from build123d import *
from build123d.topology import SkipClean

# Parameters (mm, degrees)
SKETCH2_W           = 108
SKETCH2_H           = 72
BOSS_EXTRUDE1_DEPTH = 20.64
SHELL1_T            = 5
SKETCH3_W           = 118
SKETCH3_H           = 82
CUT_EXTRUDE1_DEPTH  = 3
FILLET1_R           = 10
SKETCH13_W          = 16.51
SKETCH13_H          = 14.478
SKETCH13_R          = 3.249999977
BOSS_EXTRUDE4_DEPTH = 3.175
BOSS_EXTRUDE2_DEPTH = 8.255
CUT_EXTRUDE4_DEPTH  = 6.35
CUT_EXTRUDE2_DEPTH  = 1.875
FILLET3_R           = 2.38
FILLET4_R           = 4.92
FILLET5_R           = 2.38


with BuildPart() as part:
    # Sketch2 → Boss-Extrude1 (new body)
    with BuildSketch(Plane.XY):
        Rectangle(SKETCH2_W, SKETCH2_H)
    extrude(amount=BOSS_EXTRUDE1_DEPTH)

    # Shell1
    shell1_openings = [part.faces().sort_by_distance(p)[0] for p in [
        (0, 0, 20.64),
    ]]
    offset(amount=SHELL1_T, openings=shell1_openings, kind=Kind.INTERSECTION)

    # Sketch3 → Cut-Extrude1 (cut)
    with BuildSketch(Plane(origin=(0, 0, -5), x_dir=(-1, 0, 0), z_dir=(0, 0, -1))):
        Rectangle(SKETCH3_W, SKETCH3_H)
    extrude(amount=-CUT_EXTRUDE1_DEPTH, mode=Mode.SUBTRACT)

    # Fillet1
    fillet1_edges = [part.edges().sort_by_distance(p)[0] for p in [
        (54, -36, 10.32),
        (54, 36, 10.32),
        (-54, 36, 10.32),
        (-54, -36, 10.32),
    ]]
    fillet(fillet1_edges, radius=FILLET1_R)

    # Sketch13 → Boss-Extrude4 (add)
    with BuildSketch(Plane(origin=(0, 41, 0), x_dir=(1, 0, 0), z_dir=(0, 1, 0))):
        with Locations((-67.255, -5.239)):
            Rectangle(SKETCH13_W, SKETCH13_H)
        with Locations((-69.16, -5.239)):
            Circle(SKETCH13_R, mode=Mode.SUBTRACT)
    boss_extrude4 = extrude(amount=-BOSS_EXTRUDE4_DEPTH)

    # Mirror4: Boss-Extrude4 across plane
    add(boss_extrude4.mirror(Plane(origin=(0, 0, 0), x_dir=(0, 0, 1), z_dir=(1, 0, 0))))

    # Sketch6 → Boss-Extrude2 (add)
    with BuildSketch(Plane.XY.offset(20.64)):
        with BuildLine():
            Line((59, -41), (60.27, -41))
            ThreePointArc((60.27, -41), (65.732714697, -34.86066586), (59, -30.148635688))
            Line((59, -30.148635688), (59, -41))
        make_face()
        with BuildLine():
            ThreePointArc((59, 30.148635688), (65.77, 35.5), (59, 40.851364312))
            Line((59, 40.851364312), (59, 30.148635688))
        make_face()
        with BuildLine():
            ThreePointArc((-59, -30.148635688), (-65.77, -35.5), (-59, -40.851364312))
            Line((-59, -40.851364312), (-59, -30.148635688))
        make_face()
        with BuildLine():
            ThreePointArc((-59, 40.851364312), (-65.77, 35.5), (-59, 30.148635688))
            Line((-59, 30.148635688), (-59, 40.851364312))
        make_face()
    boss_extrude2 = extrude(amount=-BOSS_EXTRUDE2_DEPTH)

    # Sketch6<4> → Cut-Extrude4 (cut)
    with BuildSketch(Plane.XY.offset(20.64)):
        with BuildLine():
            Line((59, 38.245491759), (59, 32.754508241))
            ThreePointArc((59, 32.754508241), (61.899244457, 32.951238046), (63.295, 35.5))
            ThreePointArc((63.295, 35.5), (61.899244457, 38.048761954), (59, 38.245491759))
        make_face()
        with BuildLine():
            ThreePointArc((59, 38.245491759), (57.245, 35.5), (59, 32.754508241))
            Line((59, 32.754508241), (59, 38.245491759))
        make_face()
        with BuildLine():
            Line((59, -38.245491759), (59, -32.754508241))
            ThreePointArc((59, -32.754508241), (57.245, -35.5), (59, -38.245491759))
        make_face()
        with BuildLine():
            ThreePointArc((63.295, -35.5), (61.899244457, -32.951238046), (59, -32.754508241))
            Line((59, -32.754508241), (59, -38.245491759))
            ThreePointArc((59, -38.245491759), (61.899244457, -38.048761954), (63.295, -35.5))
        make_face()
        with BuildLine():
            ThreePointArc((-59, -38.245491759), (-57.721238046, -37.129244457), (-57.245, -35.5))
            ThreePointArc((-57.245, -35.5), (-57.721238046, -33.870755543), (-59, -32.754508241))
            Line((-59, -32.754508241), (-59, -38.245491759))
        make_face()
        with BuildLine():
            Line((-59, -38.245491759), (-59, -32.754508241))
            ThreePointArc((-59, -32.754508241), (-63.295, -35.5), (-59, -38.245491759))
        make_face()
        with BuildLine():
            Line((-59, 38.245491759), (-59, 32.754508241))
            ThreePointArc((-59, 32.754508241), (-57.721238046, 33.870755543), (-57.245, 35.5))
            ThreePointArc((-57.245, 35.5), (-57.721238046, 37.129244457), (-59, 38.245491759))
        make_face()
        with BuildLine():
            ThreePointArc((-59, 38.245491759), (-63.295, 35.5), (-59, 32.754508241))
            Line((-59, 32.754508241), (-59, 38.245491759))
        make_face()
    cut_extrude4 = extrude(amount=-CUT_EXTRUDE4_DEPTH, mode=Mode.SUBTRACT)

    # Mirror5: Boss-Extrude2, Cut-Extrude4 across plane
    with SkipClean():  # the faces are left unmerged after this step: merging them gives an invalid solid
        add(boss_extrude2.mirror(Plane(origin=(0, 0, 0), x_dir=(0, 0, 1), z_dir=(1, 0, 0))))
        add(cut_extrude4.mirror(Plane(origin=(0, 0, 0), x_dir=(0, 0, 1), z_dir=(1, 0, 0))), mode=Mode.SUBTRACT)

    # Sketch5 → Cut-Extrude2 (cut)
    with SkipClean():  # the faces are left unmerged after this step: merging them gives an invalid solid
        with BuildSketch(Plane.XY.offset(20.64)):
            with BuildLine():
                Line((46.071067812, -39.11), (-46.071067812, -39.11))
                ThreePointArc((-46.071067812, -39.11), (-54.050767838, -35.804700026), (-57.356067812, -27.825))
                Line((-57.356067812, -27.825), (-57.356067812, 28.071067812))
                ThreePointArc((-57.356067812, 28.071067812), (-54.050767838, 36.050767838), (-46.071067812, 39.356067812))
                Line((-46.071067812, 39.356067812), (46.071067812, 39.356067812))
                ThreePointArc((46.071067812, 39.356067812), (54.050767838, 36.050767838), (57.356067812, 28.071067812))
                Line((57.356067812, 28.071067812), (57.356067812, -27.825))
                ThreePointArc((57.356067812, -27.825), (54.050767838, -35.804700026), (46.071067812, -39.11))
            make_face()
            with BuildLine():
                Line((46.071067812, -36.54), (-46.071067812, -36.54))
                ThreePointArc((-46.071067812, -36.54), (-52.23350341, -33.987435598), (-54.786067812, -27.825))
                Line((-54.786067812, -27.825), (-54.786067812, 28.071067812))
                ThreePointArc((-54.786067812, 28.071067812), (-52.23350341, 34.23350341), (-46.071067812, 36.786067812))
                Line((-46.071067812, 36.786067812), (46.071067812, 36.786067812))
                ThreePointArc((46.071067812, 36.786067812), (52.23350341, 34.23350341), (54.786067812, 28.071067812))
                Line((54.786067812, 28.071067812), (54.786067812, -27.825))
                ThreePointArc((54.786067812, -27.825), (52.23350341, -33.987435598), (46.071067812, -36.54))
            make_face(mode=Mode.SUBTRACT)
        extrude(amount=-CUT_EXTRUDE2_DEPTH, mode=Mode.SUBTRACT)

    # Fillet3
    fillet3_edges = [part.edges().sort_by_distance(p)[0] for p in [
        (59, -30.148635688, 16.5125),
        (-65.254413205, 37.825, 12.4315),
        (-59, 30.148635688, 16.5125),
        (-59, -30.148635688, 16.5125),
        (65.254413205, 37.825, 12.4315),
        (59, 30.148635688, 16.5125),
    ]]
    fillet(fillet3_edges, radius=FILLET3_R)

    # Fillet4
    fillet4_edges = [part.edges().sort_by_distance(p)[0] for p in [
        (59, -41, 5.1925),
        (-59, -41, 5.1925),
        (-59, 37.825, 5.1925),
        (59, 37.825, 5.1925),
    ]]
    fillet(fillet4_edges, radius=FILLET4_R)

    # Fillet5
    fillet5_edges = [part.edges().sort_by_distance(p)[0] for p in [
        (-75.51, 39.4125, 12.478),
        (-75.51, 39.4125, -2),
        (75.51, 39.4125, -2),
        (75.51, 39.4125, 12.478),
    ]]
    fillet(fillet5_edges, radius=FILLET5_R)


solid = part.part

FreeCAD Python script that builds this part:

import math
import FreeCAD as App
import Part
import Sketcher

V = App.Vector
Q = App.Units.Quantity


def edges_at(feature, points):
    """Names of the edges that pass closest to the given points."""
    edges = feature.Shape.Edges
    near = lambda p: min(range(len(edges)), key=lambda i: edges[i].distToShape(Part.Vertex(*p))[0])
    return sorted({f"Edge{near(p) + 1}" for p in points})


def faces_at(feature, points):
    """Names of the faces that lie closest to the given points."""
    faces = feature.Shape.Faces
    near = lambda p: min(range(len(faces)), key=lambda i: faces[i].distToShape(Part.Vertex(*p))[0])
    return sorted({f"Face{near(p) + 1}" for p in points})

doc = App.newDocument("Part")
body = doc.addObject("PartDesign::Body", "Body")

# Sketch on XY plane
sketch1 = doc.addObject("Sketcher::SketchObject", "Sketch")
body.addObject(sketch1)
sketch1.AttachmentSupport = (doc.XY_Plane, [""])
sketch1.MapMode = "FlatFace"
sketch1.addGeometry([
    Part.LineSegment(V(-54, 36, 0), V(-54, -36, 0)),
    Part.LineSegment(V(-54, -36, 0), V(54, -36, 0)),
    Part.LineSegment(V(54, -36, 0), V(54, 36, 0)),
    Part.LineSegment(V(54, 36, 0), V(-54, 36, 0)),
], False)
sketch1.addConstraint([
    Sketcher.Constraint("Coincident", 0, 2, 1, 1),
    Sketcher.Constraint("Coincident", 1, 2, 2, 1),
    Sketcher.Constraint("Coincident", 2, 2, 3, 1),
    Sketcher.Constraint("Coincident", 3, 2, 0, 1),
    Sketcher.Constraint("Vertical", 0),
    Sketcher.Constraint("Horizontal", 1),
    Sketcher.Constraint("Vertical", 2),
    Sketcher.Constraint("Horizontal", 3),
    Sketcher.Constraint("Symmetric", 0, 2, 2, 2, -1, 1),
    Sketcher.Constraint("DistanceX", 1, 1, 1, 2, Q("108 mm")),
    Sketcher.Constraint("DistanceY", 0, 2, 0, 1, Q("72 mm")),
])
pad1 = doc.addObject("PartDesign::Pad", "Pad")
body.addObject(pad1)
pad1.Profile = sketch1
pad1.Length = 20.64
doc.recompute()

thickness = doc.addObject("PartDesign::Thickness", "Thickness")
body.addObject(thickness)
thickness.Base = (pad1, faces_at(pad1, [(0, 0, 20.64)]))
thickness.Value = 5
thickness.Reversed = False
thickness.Join = "Intersection"

# Sketch on XY plane
sketch2 = doc.addObject("Sketcher::SketchObject", "Sketch001")
body.addObject(sketch2)
sketch2.AttachmentSupport = (doc.XY_Plane, [""])
sketch2.MapMode = "FlatFace"
sketch2.AttachmentOffset = App.Placement(V(0, 0, -5), App.Rotation())
sketch2.addGeometry([
    Part.LineSegment(V(59, 41, 0), V(59, -41, 0)),
    Part.LineSegment(V(59, -41, 0), V(-59, -41, 0)),
    Part.LineSegment(V(-59, -41, 0), V(-59, 41, 0)),
    Part.LineSegment(V(-59, 41, 0), V(59, 41, 0)),
], False)
sketch2.addConstraint([
    Sketcher.Constraint("Coincident", 0, 2, 1, 1),
    Sketcher.Constraint("Coincident", 1, 2, 2, 1),
    Sketcher.Constraint("Coincident", 2, 2, 3, 1),
    Sketcher.Constraint("Coincident", 3, 2, 0, 1),
    Sketcher.Constraint("Vertical", 0),
    Sketcher.Constraint("Horizontal", 1),
    Sketcher.Constraint("Vertical", 2),
    Sketcher.Constraint("Horizontal", 3),
    Sketcher.Constraint("Symmetric", 0, 2, 2, 2, -1, 1),
    Sketcher.Constraint("DistanceX", 1, 2, 1, 1, Q("118 mm")),
    Sketcher.Constraint("DistanceY", 0, 2, 0, 1, Q("82 mm")),
])
pocket1 = doc.addObject("PartDesign::Pocket", "Pocket")
body.addObject(pocket1)
pocket1.Profile = sketch2
pocket1.Length = 3
pocket1.Reversed = True
doc.recompute()

fillet = doc.addObject("PartDesign::Fillet", "Fillet")
body.addObject(fillet)
fillet.Base = (pocket1, edges_at(pocket1, [
    (54, -36, 10.32),
    (54, 36, 10.32),
    (-54, 36, 10.32),
    (-54, -36, 10.32),
]))
fillet.Radius = 10

# Sketch on XZ plane
sketch3 = doc.addObject("Sketcher::SketchObject", "Sketch002")
body.addObject(sketch3)
sketch3.AttachmentSupport = (doc.XZ_Plane, [""])
sketch3.MapMode = "FlatFace"
sketch3.AttachmentOffset = App.Placement(V(0, 0, -41), App.Rotation())
sketch3.addGeometry([
    Part.LineSegment(V(-75.5, -2, 0), V(-75.5, 12.5, 0)),  # 0
    Part.LineSegment(V(-75.5, 12.5, 0), V(-59, 12.5, 0)),  # 1
    Part.LineSegment(V(-59, 12.5, 0), V(-59, -2, 0)),  # 2
    Part.LineSegment(V(-59, -2, 0), V(-75.5, -2, 0)),  # 3
    Part.Circle(V(-69.2, 5.2, 0), V(0, 0, 1), 3.2),  # 4
], False)
sketch3.addConstraint([
    Sketcher.Constraint("Coincident", 0, 2, 1, 1),
    Sketcher.Constraint("Coincident", 1, 2, 2, 1),
    Sketcher.Constraint("Coincident", 2, 2, 3, 1),
    Sketcher.Constraint("Coincident", 3, 2, 0, 1),
    Sketcher.Constraint("Vertical", 0),
    Sketcher.Constraint("Horizontal", 1),
    Sketcher.Constraint("Vertical", 2),
    Sketcher.Constraint("Horizontal", 3),
    Sketcher.Constraint("Diameter", 4, Q("6.5 mm")),
    Sketcher.Constraint("DistanceX", 1, 2, -1, 1, Q("59 mm")),
    Sketcher.Constraint("DistanceY", 2, 2, -1, 1, Q("2 mm")),
    Sketcher.Constraint("DistanceX", 1, 1, 1, 2, Q("16.51 mm")),
    Sketcher.Constraint("DistanceY", 0, 1, 0, 2, Q("14.478 mm")),
    Sketcher.Constraint("DistanceX", 4, 3, -1, 1, Q("69.16 mm")),
    Sketcher.Constraint("DistanceY", -1, 1, 4, 3, Q("5.239 mm")),
])
pad2 = doc.addObject("PartDesign::Pad", "Pad001")
body.addObject(pad2)
pad2.Profile = sketch3
pad2.Length = 3.175
doc.recompute()

mirrored = doc.addObject("PartDesign::Mirrored", "Mirrored")
body.addObject(mirrored)
mirrored.Originals = [pad2]
mirrored.MirrorPlane = (doc.YZ_Plane, [""])
body.Tip = mirrored

# Sketch on XY plane
sketch4 = doc.addObject("Sketcher::SketchObject", "Sketch003")
body.addObject(sketch4)
sketch4.AttachmentSupport = (doc.XY_Plane, [""])
sketch4.MapMode = "FlatFace"
sketch4.AttachmentOffset = App.Placement(V(0, 0, 20.64), App.Rotation())
sketch4.addGeometry([
    Part.LineSegment(V(59, -41, 0), V(60.3, -41, 0)),  # 0
    Part.ArcOfCircle(Part.Circle(V(60.3, -35.5, 0), V(0, 0, 1), 5.5), math.radians(-90), math.radians(103)),  # 1
    Part.LineSegment(V(59, -30.1, 0), V(59, -41, 0)),  # 2
    Part.ArcOfCircle(Part.Circle(V(60.3, 35.5, 0), V(0, 0, 1), 5.5), math.radians(-103), math.radians(103)),  # 3
    Part.LineSegment(V(59, 40.9, 0), V(59, 30.1, 0)),  # 4
    Part.ArcOfCircle(Part.Circle(V(-60.3, -35.5, 0), V(0, 0, 1), 5.5), math.radians(77), math.radians(283)),  # 5
    Part.LineSegment(V(-59, -40.9, 0), V(-59, -30.1, 0)),  # 6
    Part.ArcOfCircle(Part.Circle(V(-60.3, 35.5, 0), V(0, 0, 1), 5.5), math.radians(77), math.radians(283)),  # 7
    Part.LineSegment(V(-59, 30.1, 0), V(-59, 40.9, 0)),  # 8
], False)
sketch4.addConstraint([
    Sketcher.Constraint("Tangent", 0, 2, 1, 1),
    Sketcher.Constraint("Coincident", 1, 2, 2, 1),
    Sketcher.Constraint("Coincident", 2, 2, 0, 1),
    Sketcher.Constraint("Coincident", 3, 1, 4, 2),
    Sketcher.Constraint("Coincident", 4, 1, 3, 2),
    Sketcher.Constraint("Coincident", 5, 1, 6, 2),
    Sketcher.Constraint("Coincident", 6, 1, 5, 2),
    Sketcher.Constraint("Coincident", 7, 1, 8, 2),
    Sketcher.Constraint("Coincident", 8, 1, 7, 2),
    Sketcher.Constraint("Horizontal", 0),
    Sketcher.Constraint("Vertical", 2),
    Sketcher.Constraint("Vertical", 4),
    Sketcher.Constraint("Vertical", 6),
    Sketcher.Constraint("Vertical", 8),
    Sketcher.Constraint("Equal", 1, 3),
    Sketcher.Constraint("Equal", 3, 5),
    Sketcher.Constraint("Equal", 5, 7),
    Sketcher.Constraint("Symmetric", 3, 3, 5, 3, -1, 1),
    Sketcher.Constraint("Symmetric", 1, 3, 7, 3, -1, 1),
    Sketcher.Constraint("Symmetric", 1, 3, 5, 3, -2),
    Sketcher.Constraint("Horizontal", 1, 2, 5, 1),
    Sketcher.Constraint("Horizontal", 4, 1, 7, 1),
    Sketcher.Constraint("Vertical", 2, 2, 3, 1),
    Sketcher.Constraint("Radius", 1, Q("5.5 mm")),
    Sketcher.Constraint("DistanceY", 0, 2, -1, 1, Q("41 mm")),
    Sketcher.Constraint("DistanceX", -1, 1, 1, 2, Q("59 mm")),
    Sketcher.Constraint("DistanceX", 0, 1, 0, 2, Q("1.27 mm")),
])
pad3 = doc.addObject("PartDesign::Pad", "Pad002")
body.addObject(pad3)
pad3.Profile = sketch4
pad3.Length = 8.255
pad3.Reversed = True

# Sketch on XY plane
sketch5 = doc.addObject("Sketcher::SketchObject", "Sketch004")
body.addObject(sketch5)
sketch5.AttachmentSupport = (doc.XY_Plane, [""])
sketch5.MapMode = "FlatFace"
sketch5.AttachmentOffset = App.Placement(V(0, 0, 20.64), App.Rotation())
sketch5.addGeometry([
    Part.ArcOfCircle(Part.Circle(V(60.3, 35.5, 0), V(0, 0, 1), 3), math.radians(-115), math.radians(0)),  # 0
    Part.ArcOfCircle(Part.Circle(V(60.3, 35.5, 0), V(0, 0, 1), 3), math.radians(0), math.radians(115)),  # 1
    Part.ArcOfCircle(Part.Circle(V(60.3, 35.5, 0), V(0, 0, 1), 3), math.radians(115), math.radians(245)),  # 2
    Part.ArcOfCircle(Part.Circle(V(60.3, -35.5, 0), V(0, 0, 1), 3), math.radians(115), math.radians(245)),  # 3
    Part.ArcOfCircle(Part.Circle(V(60.3, -35.5, 0), V(0, 0, 1), 3), math.radians(-115), math.radians(0)),  # 4
    Part.ArcOfCircle(Part.Circle(V(60.3, -35.5, 0), V(0, 0, 1), 3), math.radians(0), math.radians(115)),  # 5
    Part.ArcOfCircle(Part.Circle(V(-60.3, -35.5, 0), V(0, 0, 1), 3), math.radians(-65), math.radians(0)),  # 6
    Part.ArcOfCircle(Part.Circle(V(-60.3, -35.5, 0), V(0, 0, 1), 3), math.radians(0), math.radians(65)),  # 7
    Part.ArcOfCircle(Part.Circle(V(-60.3, -35.5, 0), V(0, 0, 1), 3), math.radians(65), math.radians(295)),  # 8
    Part.ArcOfCircle(Part.Circle(V(-60.3, 35.5, 0), V(0, 0, 1), 3), math.radians(-65), math.radians(0)),  # 9
    Part.ArcOfCircle(Part.Circle(V(-60.3, 35.5, 0), V(0, 0, 1), 3), math.radians(0), math.radians(65)),  # 10
    Part.ArcOfCircle(Part.Circle(V(-60.3, 35.5, 0), V(0, 0, 1), 3), math.radians(65), math.radians(295)),  # 11
], False)
sketch5.addConstraint([
    Sketcher.Constraint("Tangent", 0, 2, 1, 1),
    Sketcher.Constraint("Tangent", 1, 2, 2, 1),
    Sketcher.Constraint("Tangent", 2, 2, 0, 1),
    Sketcher.Constraint("Tangent", 3, 2, 4, 1),
    Sketcher.Constraint("Tangent", 4, 2, 5, 1),
    Sketcher.Constraint("Tangent", 5, 2, 3, 1),
    Sketcher.Constraint("Tangent", 6, 2, 7, 1),
    Sketcher.Constraint("Tangent", 7, 2, 8, 1),
    Sketcher.Constraint("Tangent", 8, 2, 6, 1),
    Sketcher.Constraint("Tangent", 9, 2, 10, 1),
    Sketcher.Constraint("Tangent", 10, 2, 11, 1),
    Sketcher.Constraint("Tangent", 11, 2, 9, 1),
    Sketcher.Constraint("Equal", 2, 3),
    Sketcher.Constraint("Equal", 5, 6),
    Sketcher.Constraint("Equal", 8, 9),
    Sketcher.Constraint("Symmetric", 0, 3, 6, 3, -1, 1),
    Sketcher.Constraint("Symmetric", 3, 3, 9, 3, -1, 1),
    Sketcher.Constraint("Symmetric", 3, 3, 6, 3, -2),
    Sketcher.Constraint("Horizontal", 11, 3, 0, 2),
    Sketcher.Constraint("Horizontal", 8, 3, 4, 2),
    Sketcher.Constraint("Horizontal", 4, 2, 6, 2),
    Sketcher.Constraint("Horizontal", 5, 2, 7, 2),
    Sketcher.Constraint("Horizontal", 3, 2, 8, 2),
    Sketcher.Constraint("Horizontal", 0, 2, 9, 2),
    Sketcher.Constraint("Horizontal", 1, 2, 10, 2),
    Sketcher.Constraint("Horizontal", 2, 2, 11, 2),
    Sketcher.Constraint("Vertical", 1, 2, 2, 2),
    Sketcher.Constraint("Vertical", 2, 2, 3, 2),
    Sketcher.Constraint("Vertical", 3, 2, 5, 2),
    Sketcher.Constraint("DistanceX", -1, 1, 1, 2, Q("59 mm")),
    Sketcher.Constraint("Radius", 0, Q("3.025 mm")),
    Sketcher.Constraint("DistanceY", 3, 3, 0, 3, Q("71 mm")),
    Sketcher.Constraint("DistanceX", -1, 1, 0, 3, Q("60.27 mm")),
])
pocket2 = doc.addObject("PartDesign::Pocket", "Pocket001")
body.addObject(pocket2)
pocket2.Profile = sketch5
pocket2.Length = 6.35
doc.recompute()

mirrored2 = doc.addObject("PartDesign::Mirrored", "Mirrored001")
body.addObject(mirrored2)
mirrored2.Originals = [pad3, pocket2]
mirrored2.MirrorPlane = (doc.YZ_Plane, [""])
body.Tip = mirrored2

# Sketch on XY plane
sketch6 = doc.addObject("Sketcher::SketchObject", "Sketch005")
body.addObject(sketch6)
sketch6.AttachmentSupport = (doc.XY_Plane, [""])
sketch6.MapMode = "FlatFace"
sketch6.AttachmentOffset = App.Placement(V(0, 0, 20.64), App.Rotation())
sketch6.addGeometry([
    Part.LineSegment(V(-46, -39, 0), V(46, -39, 0)),  # 0
    Part.ArcOfCircle(Part.Circle(V(46, -28, 0), V(0, 0, 1), 11), math.radians(-90), math.radians(0)),  # 1
    Part.LineSegment(V(57, -28, 0), V(57, 28, 0)),  # 2
    Part.ArcOfCircle(Part.Circle(V(46, 28, 0), V(0, 0, 1), 11), math.radians(0), math.radians(90)),  # 3
    Part.LineSegment(V(46, 39, 0), V(-46, 39, 0)),  # 4
    Part.ArcOfCircle(Part.Circle(V(-46, 28, 0), V(0, 0, 1), 11), math.radians(90), math.radians(180)),  # 5
    Part.LineSegment(V(-57, 28, 0), V(-57, -28, 0)),  # 6
    Part.ArcOfCircle(Part.Circle(V(-46, -28, 0), V(0, 0, 1), 11), math.radians(180), math.radians(270)),  # 7
    Part.LineSegment(V(46, -37, 0), V(-46, -37, 0)),  # 8
    Part.ArcOfCircle(Part.Circle(V(-46, -28, 0), V(0, 0, 1), 9), math.radians(180), math.radians(270)),  # 9
    Part.LineSegment(V(-55, -28, 0), V(-55, 28, 0)),  # 10
    Part.ArcOfCircle(Part.Circle(V(-46, 28, 0), V(0, 0, 1), 9), math.radians(90), math.radians(180)),  # 11
    Part.LineSegment(V(-46, 37, 0), V(46, 37, 0)),  # 12
    Part.ArcOfCircle(Part.Circle(V(46, 28, 0), V(0, 0, 1), 9), math.radians(0), math.radians(90)),  # 13
    Part.LineSegment(V(55, 28, 0), V(55, -28, 0)),  # 14
    Part.ArcOfCircle(Part.Circle(V(46, -28, 0), V(0, 0, 1), 9), math.radians(-90), math.radians(0)),  # 15
], False)
sketch6.addConstraint([
    Sketcher.Constraint("Tangent", 0, 2, 1, 1),
    Sketcher.Constraint("Tangent", 1, 2, 2, 1),
    Sketcher.Constraint("Tangent", 2, 2, 3, 1),
    Sketcher.Constraint("Tangent", 3, 2, 4, 1),
    Sketcher.Constraint("Tangent", 4, 2, 5, 1),
    Sketcher.Constraint("Tangent", 5, 2, 6, 1),
    Sketcher.Constraint("Tangent", 6, 2, 7, 1),
    Sketcher.Constraint("Tangent", 7, 2, 0, 1),
    Sketcher.Constraint("Tangent", 8, 2, 9, 2),
    Sketcher.Constraint("Tangent", 9, 1, 10, 1),
    Sketcher.Constraint("Tangent", 10, 2, 11, 2),
    Sketcher.Constraint("Tangent", 11, 1, 12, 1),
    Sketcher.Constraint("Tangent", 12, 2, 13, 2),
    Sketcher.Constraint("Tangent", 13, 1, 14, 1),
    Sketcher.Constraint("Tangent", 14, 2, 15, 2),
    Sketcher.Constraint("Tangent", 15, 1, 8, 1),
    Sketcher.Constraint("Horizontal", 0),
    Sketcher.Constraint("Vertical", 2),
    Sketcher.Constraint("Horizontal", 4),
    Sketcher.Constraint("Vertical", 6),
    Sketcher.Constraint("Horizontal", 8),
    Sketcher.Constraint("Vertical", 10),
    Sketcher.Constraint("Horizontal", 12),
    Sketcher.Constraint("Vertical", 14),
    Sketcher.Constraint("Coincident", 9, 3, 7, 3),
    Sketcher.Constraint("Coincident", 11, 3, 5, 3),
    Sketcher.Constraint("Coincident", 13, 3, 3, 3),
    Sketcher.Constraint("Equal", 1, 3),
    Sketcher.Constraint("Equal", 3, 5),
    Sketcher.Constraint("Equal", 5, 7),
    Sketcher.Constraint("Equal", 13, 15),
    Sketcher.Constraint("Radius", 1, Q("11.285 mm")),
    Sketcher.Constraint("Radius", 9, Q("8.715 mm")),
    Sketcher.Constraint("DistanceY", 0, 2, -1, 1, Q("39.11 mm")),
    Sketcher.Constraint("DistanceX", 0, 1, 0, 2, Q("92.142136 mm")),
    Sketcher.Constraint("DistanceY", 2, 1, 2, 2, Q("55.896068 mm")),
    Sketcher.Constraint("DistanceX", -1, 1, 1, 3, Q("46.071068 mm")),
])
pocket3 = doc.addObject("PartDesign::Pocket", "Pocket002")
body.addObject(pocket3)
pocket3.Profile = sketch6
pocket3.Length = 1.875
doc.recompute()

fillet2 = doc.addObject("PartDesign::Fillet", "Fillet001")
body.addObject(fillet2)
fillet2.Base = (pocket3, edges_at(pocket3, [
    (59, -30.149, 16.512),
    (-65.254, 37.825, 12.431),
    (-59, 30.149, 16.512),
    (-59, -30.149, 16.512),
    (65.254, 37.825, 12.431),
    (59, 30.149, 16.512),
]))
fillet2.Radius = 2.38
doc.recompute()

fillet3 = doc.addObject("PartDesign::Fillet", "Fillet002")
body.addObject(fillet3)
fillet3.Base = (fillet2, edges_at(fillet2, [
    (59, -41, 5.192),
    (-59, -41, 5.192),
    (-59, 37.825, 5.192),
    (59, 37.825, 5.192),
]))
fillet3.Radius = 4.92
doc.recompute()

fillet4 = doc.addObject("PartDesign::Fillet", "Fillet003")
body.addObject(fillet4)
fillet4.Base = (fillet3, edges_at(fillet3, [
    (-75.51, 39.413, 12.478),
    (-75.51, 39.413, -2),
    (75.51, 39.413, -2),
    (75.51, 39.413, 12.478),
]))
fillet4.Radius = 2.38

doc.recompute()
